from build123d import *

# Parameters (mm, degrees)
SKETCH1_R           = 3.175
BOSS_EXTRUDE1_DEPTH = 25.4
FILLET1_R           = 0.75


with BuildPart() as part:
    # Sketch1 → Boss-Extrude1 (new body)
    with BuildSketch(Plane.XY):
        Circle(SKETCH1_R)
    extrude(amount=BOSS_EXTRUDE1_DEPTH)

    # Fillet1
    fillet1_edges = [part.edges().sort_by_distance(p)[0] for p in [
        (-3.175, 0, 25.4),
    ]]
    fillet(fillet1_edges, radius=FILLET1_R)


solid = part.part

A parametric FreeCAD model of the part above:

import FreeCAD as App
import Part
import Sketcher
Q = App.Units.Quantity


def edges_at(feature, points):
    """Names of the edges that pass closest to the given points."""
    edges = feature.Shape.Edges
    near = lambda p: min(range(len(edges)), key=lambda i: edges[i].distToShape(Part.Vertex(*p))[0])
    return sorted({f"Edge{near(p) + 1}" for p in points})

doc = App.newDocument("Part")
params = doc.addObject("Spreadsheet::Sheet", "Params")
for row, (alias, value) in enumerate([
    ("sketch1_diameter", "0.25 in"),
    ("pad1_length", "1 in"),
    ("fillet_radius", "0.75 mm"),
], start=1):
    params.set(f"A{row}", alias)
    params.set(f"B{row}", "=" + value)
    params.setAlias(f"B{row}", alias)

body = doc.addObject("PartDesign::Body", "Body")

# Sketch on XY plane
sketch1 = body.newObject("Sketcher::SketchObject", "Sketch")
sketch1.AttachmentSupport = (doc.getObject("XY_Plane"), [""])
sketch1.MapMode = "FlatFace"
sketch1.addGeometry(Part.Circle(App.Vector(0, 0, 0), App.Vector(0, 0, 1), 3.175), False)
sketch1.addConstraint([
    Sketcher.Constraint("Coincident", 0, 3, -1, 1),
    Sketcher.Constraint("Diameter", 0, Q("0.25 in")),
])
sketch1.setExpression("Constraints[1]", "Params.sketch1_diameter")
pad1 = body.newObject("PartDesign::Pad", "Pad")
pad1.Profile = sketch1
pad1.setExpression("Length", "Params.pad1_length")
doc.recompute()

fillet = body.newObject("PartDesign::Fillet", "Fillet")
fillet.Base = (pad1, edges_at(pad1, [(-3.175, 0, 25.4)]))
fillet.setExpression("Radius", "Params.fillet_radius")

doc.recompute()
